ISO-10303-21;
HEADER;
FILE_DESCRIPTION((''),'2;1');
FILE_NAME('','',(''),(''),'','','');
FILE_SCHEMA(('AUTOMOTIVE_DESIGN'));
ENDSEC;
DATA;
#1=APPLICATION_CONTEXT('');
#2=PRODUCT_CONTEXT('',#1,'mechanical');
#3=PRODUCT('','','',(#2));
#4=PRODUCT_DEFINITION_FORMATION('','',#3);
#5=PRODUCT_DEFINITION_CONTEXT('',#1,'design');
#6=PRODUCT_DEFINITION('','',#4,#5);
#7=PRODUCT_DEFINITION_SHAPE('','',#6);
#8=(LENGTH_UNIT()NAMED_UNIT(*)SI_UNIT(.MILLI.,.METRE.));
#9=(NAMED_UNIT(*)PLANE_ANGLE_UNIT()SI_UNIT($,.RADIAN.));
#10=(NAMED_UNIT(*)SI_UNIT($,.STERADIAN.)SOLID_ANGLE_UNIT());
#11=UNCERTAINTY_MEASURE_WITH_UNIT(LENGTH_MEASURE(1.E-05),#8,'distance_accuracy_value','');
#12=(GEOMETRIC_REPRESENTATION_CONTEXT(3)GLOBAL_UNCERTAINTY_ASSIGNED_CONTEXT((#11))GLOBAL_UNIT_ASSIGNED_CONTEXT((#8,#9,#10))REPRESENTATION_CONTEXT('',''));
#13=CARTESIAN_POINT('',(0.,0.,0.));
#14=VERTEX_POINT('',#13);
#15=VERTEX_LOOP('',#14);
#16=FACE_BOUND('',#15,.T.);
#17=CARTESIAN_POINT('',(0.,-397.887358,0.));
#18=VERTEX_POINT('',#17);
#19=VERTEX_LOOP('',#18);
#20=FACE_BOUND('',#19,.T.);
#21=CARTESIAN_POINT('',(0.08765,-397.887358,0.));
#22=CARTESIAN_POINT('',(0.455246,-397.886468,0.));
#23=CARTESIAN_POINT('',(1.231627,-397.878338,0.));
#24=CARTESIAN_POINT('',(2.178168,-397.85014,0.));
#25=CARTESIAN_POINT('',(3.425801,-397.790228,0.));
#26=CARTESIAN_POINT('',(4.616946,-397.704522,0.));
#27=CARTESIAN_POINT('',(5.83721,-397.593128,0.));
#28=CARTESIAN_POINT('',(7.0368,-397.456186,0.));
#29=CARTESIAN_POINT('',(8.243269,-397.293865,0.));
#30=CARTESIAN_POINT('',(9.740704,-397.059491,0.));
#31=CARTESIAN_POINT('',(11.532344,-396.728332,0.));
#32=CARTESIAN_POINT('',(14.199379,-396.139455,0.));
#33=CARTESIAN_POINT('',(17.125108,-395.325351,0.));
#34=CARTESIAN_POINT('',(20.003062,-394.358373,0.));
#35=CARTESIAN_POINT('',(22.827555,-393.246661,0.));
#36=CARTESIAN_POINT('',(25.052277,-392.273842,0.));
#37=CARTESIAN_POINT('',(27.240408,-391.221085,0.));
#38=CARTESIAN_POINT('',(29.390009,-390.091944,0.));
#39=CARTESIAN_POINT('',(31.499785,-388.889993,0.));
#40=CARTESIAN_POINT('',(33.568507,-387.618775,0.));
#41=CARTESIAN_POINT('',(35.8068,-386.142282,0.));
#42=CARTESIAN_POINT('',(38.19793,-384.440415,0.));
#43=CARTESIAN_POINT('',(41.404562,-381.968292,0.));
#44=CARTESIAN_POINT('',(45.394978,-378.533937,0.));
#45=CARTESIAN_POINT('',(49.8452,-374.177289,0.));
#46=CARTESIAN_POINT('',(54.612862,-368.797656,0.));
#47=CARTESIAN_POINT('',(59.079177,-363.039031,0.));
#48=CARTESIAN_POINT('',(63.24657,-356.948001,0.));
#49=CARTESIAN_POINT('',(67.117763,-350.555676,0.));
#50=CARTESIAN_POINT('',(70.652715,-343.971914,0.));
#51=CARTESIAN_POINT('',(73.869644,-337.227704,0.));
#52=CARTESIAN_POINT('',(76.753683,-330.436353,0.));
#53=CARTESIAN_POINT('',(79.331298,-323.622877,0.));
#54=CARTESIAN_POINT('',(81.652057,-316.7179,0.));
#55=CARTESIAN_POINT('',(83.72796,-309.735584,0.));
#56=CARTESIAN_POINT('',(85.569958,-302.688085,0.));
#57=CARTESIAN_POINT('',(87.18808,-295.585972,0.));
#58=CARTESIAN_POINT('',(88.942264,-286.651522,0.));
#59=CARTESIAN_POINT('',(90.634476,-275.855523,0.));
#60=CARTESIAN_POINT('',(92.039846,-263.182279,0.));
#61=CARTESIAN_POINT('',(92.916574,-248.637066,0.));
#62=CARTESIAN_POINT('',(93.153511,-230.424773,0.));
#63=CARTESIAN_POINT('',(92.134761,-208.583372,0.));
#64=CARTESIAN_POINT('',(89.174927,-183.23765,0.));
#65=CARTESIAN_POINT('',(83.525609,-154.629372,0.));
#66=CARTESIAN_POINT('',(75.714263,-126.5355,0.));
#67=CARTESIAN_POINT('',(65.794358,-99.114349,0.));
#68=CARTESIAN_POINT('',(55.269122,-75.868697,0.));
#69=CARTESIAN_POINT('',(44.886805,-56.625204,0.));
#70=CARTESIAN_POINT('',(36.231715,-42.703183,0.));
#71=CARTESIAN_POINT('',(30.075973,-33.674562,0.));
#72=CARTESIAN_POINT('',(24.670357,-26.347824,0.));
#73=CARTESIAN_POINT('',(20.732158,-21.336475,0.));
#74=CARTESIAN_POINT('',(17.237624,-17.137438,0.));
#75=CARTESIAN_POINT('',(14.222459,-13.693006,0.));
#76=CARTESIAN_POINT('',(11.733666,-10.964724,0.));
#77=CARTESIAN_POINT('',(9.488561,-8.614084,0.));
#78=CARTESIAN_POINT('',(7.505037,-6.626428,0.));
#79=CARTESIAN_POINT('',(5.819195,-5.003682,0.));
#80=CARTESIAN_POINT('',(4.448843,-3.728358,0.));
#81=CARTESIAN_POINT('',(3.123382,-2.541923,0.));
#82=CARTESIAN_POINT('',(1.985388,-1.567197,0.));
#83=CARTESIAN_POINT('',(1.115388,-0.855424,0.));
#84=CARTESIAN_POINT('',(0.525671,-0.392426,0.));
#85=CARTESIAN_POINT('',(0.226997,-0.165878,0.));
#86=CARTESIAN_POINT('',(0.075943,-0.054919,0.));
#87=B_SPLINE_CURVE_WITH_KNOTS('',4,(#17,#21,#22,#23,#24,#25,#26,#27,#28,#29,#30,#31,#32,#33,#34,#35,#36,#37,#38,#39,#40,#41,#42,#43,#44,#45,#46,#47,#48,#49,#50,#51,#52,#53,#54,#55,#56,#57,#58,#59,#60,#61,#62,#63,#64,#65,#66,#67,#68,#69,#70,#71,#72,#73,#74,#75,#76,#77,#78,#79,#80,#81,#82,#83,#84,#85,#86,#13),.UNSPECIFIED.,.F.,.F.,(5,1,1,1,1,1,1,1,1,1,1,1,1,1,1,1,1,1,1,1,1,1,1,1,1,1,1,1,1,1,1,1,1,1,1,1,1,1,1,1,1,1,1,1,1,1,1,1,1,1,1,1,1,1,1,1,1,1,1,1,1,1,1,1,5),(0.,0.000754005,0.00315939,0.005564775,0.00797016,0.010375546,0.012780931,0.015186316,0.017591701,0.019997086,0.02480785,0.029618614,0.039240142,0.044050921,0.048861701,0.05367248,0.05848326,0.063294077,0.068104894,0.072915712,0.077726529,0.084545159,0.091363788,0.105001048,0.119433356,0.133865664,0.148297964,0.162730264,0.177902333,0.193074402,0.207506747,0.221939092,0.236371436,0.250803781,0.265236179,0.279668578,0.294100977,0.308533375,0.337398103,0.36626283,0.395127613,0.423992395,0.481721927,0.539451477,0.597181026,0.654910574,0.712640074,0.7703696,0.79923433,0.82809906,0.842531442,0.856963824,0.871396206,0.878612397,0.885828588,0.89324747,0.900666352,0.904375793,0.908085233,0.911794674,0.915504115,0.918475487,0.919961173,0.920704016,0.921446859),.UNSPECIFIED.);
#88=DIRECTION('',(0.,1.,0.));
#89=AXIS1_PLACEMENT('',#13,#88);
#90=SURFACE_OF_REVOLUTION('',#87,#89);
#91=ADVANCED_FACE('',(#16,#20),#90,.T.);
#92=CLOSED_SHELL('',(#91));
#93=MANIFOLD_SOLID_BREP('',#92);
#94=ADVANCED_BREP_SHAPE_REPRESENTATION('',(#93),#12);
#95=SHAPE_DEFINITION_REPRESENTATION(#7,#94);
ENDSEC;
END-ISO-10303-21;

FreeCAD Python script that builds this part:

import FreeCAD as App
import Part
import Sketcher

doc = App.newDocument("Part")
body = doc.addObject("PartDesign::Body", "Body")

# Sketch on XY plane
sketch1 = body.newObject("Sketcher::SketchObject", "Sketch")
sketch1.AttachmentSupport = (doc.getObject("XY_Plane"), [""])
sketch1.MapMode = "FlatFace"
sketch1.addGeometry([
    Part.LineSegment(App.Vector(0, 0, 0), App.Vector(0, -397.887358, 0)),
    Part.BSplineCurve([App.Vector(0, 0, 0), App.Vector(0.075943, -0.054919, 0), App.Vector(0.226997, -0.165878, 0), App.Vector(0.525671, -0.392426, 0), App.Vector(1.115388, -0.855424, 0), App.Vector(1.985388, -1.567197, 0), App.Vector(3.123382, -2.541923, 0), App.Vector(4.448843, -3.728358, 0), App.Vector(5.819195, -5.003682, 0), App.Vector(7.505037, -6.626428, 0), App.Vector(9.488561, -8.614084, 0), App.Vector(11.733666, -10.964724, 0), App.Vector(14.222459, -13.693006, 0), App.Vector(17.237624, -17.137438, 0), App.Vector(20.732158, -21.336475, 0), App.Vector(24.670357, -26.347824, 0), App.Vector(30.075973, -33.674562, 0), App.Vector(36.231715, -42.703183, 0), App.Vector(44.886805, -56.625204, 0), App.Vector(55.269122, -75.868697, 0), App.Vector(65.794358, -99.114349, 0), App.Vector(75.714263, -126.5355, 0), App.Vector(83.525609, -154.629372, 0), App.Vector(89.174927, -183.23765, 0), App.Vector(92.134761, -208.583372, 0), App.Vector(93.153511, -230.424773, 0), App.Vector(92.916574, -248.637066, 0), App.Vector(92.039846, -263.182279, 0), App.Vector(90.634476, -275.855523, 0), App.Vector(88.942264, -286.651522, 0), App.Vector(87.18808, -295.585972, 0), App.Vector(85.569958, -302.688085, 0), App.Vector(83.72796, -309.735584, 0), App.Vector(81.652057, -316.7179, 0), App.Vector(79.331298, -323.622877, 0), App.Vector(76.753683, -330.436353, 0), App.Vector(73.869644, -337.227704, 0), App.Vector(70.652715, -343.971914, 0), App.Vector(67.117763, -350.555676, 0), App.Vector(63.24657, -356.948001, 0), App.Vector(59.079177, -363.039031, 0), App.Vector(54.612862, -368.797656, 0), App.Vector(49.8452, -374.177289, 0), App.Vector(45.394978, -378.533937, 0), App.Vector(41.404562, -381.968292, 0), App.Vector(38.19793, -384.440415, 0), App.Vector(35.8068, -386.142282, 0), App.Vector(33.568507, -387.618775, 0), App.Vector(31.499785, -388.889993, 0), App.Vector(29.390009, -390.091944, 0), App.Vector(27.240408, -391.221085, 0), App.Vector(25.052277, -392.273842, 0), App.Vector(22.827555, -393.246661, 0), App.Vector(20.003062, -394.358373, 0), App.Vector(17.125108, -395.325351, 0), App.Vector(14.199379, -396.139455, 0), App.Vector(11.532344, -396.728332, 0), App.Vector(9.740704, -397.059491, 0), App.Vector(8.243269, -397.293865, 0), App.Vector(7.0368, -397.456186, 0), App.Vector(5.83721, -397.593128, 0), App.Vector(4.616946, -397.704522, 0), App.Vector(3.425801, -397.790228, 0), App.Vector(2.178168, -397.85014, 0), App.Vector(1.231627, -397.878338, 0), App.Vector(0.455246, -397.886468, 0), App.Vector(0.08765, -397.887358, 0), App.Vector(0, -397.887358, 0)], [5, 1, 1, 1, 1, 1, 1, 1, 1, 1, 1, 1, 1, 1, 1, 1, 1, 1, 1, 1, 1, 1, 1, 1, 1, 1, 1, 1, 1, 1, 1, 1, 1, 1, 1, 1, 1, 1, 1, 1, 1, 1, 1, 1, 1, 1, 1, 1, 1, 1, 1, 1, 1, 1, 1, 1, 1, 1, 1, 1, 1, 1, 1, 1, 5], [0, 0.000742843, 0.001485686, 0.002971372, 0.005942744, 0.009652185, 0.013361626, 0.017071067, 0.020780507, 0.028199389, 0.035618271, 0.042834462, 0.050050653, 0.064483035, 0.078915417, 0.0933478, 0.122212529, 0.151077259, 0.208806785, 0.266536285, 0.324265833, 0.381995382, 0.439724932, 0.497454464, 0.526319246, 0.555184029, 0.584048756, 0.612913484, 0.627345883, 0.641778281, 0.65621068, 0.670643078, 0.685075423, 0.699507768, 0.713940112, 0.728372457, 0.743544526, 0.758716595, 0.773148895, 0.787581195, 0.802013503, 0.816445812, 0.830083071, 0.836901701, 0.84372033, 0.848531147, 0.853341965, 0.858152782, 0.862963599, 0.867774379, 0.872585158, 0.877395938, 0.882206717, 0.891828245, 0.896639009, 0.901449773, 0.903855158, 0.906260543, 0.908665928, 0.911071314, 0.913476699, 0.915882084, 0.918287469, 0.920692854, 0.921446859], False, 4, [1, 1, 1, 1, 1, 1, 1, 1, 1, 1, 1, 1, 1, 1, 1, 1, 1, 1, 1, 1, 1, 1, 1, 1, 1, 1, 1, 1, 1, 1, 1, 1, 1, 1, 1, 1, 1, 1, 1, 1, 1, 1, 1, 1, 1, 1, 1, 1, 1, 1, 1, 1, 1, 1, 1, 1, 1, 1, 1, 1, 1, 1, 1, 1, 1, 1, 1, 1], False),
], False)
sketch1.addConstraint([
    Sketcher.Constraint("Block", 1),
    Sketcher.Constraint("Coincident", 0, 1, 1, 1),
    Sketcher.Constraint("Coincident", 1, 2, 0, 2),
])
revolution = body.newObject("PartDesign::Revolution", "Revolution")
revolution.Profile = sketch1
revolution.ReferenceAxis = (sketch1, ["V_Axis"])
revolution.Angle = 360

doc.recompute()
